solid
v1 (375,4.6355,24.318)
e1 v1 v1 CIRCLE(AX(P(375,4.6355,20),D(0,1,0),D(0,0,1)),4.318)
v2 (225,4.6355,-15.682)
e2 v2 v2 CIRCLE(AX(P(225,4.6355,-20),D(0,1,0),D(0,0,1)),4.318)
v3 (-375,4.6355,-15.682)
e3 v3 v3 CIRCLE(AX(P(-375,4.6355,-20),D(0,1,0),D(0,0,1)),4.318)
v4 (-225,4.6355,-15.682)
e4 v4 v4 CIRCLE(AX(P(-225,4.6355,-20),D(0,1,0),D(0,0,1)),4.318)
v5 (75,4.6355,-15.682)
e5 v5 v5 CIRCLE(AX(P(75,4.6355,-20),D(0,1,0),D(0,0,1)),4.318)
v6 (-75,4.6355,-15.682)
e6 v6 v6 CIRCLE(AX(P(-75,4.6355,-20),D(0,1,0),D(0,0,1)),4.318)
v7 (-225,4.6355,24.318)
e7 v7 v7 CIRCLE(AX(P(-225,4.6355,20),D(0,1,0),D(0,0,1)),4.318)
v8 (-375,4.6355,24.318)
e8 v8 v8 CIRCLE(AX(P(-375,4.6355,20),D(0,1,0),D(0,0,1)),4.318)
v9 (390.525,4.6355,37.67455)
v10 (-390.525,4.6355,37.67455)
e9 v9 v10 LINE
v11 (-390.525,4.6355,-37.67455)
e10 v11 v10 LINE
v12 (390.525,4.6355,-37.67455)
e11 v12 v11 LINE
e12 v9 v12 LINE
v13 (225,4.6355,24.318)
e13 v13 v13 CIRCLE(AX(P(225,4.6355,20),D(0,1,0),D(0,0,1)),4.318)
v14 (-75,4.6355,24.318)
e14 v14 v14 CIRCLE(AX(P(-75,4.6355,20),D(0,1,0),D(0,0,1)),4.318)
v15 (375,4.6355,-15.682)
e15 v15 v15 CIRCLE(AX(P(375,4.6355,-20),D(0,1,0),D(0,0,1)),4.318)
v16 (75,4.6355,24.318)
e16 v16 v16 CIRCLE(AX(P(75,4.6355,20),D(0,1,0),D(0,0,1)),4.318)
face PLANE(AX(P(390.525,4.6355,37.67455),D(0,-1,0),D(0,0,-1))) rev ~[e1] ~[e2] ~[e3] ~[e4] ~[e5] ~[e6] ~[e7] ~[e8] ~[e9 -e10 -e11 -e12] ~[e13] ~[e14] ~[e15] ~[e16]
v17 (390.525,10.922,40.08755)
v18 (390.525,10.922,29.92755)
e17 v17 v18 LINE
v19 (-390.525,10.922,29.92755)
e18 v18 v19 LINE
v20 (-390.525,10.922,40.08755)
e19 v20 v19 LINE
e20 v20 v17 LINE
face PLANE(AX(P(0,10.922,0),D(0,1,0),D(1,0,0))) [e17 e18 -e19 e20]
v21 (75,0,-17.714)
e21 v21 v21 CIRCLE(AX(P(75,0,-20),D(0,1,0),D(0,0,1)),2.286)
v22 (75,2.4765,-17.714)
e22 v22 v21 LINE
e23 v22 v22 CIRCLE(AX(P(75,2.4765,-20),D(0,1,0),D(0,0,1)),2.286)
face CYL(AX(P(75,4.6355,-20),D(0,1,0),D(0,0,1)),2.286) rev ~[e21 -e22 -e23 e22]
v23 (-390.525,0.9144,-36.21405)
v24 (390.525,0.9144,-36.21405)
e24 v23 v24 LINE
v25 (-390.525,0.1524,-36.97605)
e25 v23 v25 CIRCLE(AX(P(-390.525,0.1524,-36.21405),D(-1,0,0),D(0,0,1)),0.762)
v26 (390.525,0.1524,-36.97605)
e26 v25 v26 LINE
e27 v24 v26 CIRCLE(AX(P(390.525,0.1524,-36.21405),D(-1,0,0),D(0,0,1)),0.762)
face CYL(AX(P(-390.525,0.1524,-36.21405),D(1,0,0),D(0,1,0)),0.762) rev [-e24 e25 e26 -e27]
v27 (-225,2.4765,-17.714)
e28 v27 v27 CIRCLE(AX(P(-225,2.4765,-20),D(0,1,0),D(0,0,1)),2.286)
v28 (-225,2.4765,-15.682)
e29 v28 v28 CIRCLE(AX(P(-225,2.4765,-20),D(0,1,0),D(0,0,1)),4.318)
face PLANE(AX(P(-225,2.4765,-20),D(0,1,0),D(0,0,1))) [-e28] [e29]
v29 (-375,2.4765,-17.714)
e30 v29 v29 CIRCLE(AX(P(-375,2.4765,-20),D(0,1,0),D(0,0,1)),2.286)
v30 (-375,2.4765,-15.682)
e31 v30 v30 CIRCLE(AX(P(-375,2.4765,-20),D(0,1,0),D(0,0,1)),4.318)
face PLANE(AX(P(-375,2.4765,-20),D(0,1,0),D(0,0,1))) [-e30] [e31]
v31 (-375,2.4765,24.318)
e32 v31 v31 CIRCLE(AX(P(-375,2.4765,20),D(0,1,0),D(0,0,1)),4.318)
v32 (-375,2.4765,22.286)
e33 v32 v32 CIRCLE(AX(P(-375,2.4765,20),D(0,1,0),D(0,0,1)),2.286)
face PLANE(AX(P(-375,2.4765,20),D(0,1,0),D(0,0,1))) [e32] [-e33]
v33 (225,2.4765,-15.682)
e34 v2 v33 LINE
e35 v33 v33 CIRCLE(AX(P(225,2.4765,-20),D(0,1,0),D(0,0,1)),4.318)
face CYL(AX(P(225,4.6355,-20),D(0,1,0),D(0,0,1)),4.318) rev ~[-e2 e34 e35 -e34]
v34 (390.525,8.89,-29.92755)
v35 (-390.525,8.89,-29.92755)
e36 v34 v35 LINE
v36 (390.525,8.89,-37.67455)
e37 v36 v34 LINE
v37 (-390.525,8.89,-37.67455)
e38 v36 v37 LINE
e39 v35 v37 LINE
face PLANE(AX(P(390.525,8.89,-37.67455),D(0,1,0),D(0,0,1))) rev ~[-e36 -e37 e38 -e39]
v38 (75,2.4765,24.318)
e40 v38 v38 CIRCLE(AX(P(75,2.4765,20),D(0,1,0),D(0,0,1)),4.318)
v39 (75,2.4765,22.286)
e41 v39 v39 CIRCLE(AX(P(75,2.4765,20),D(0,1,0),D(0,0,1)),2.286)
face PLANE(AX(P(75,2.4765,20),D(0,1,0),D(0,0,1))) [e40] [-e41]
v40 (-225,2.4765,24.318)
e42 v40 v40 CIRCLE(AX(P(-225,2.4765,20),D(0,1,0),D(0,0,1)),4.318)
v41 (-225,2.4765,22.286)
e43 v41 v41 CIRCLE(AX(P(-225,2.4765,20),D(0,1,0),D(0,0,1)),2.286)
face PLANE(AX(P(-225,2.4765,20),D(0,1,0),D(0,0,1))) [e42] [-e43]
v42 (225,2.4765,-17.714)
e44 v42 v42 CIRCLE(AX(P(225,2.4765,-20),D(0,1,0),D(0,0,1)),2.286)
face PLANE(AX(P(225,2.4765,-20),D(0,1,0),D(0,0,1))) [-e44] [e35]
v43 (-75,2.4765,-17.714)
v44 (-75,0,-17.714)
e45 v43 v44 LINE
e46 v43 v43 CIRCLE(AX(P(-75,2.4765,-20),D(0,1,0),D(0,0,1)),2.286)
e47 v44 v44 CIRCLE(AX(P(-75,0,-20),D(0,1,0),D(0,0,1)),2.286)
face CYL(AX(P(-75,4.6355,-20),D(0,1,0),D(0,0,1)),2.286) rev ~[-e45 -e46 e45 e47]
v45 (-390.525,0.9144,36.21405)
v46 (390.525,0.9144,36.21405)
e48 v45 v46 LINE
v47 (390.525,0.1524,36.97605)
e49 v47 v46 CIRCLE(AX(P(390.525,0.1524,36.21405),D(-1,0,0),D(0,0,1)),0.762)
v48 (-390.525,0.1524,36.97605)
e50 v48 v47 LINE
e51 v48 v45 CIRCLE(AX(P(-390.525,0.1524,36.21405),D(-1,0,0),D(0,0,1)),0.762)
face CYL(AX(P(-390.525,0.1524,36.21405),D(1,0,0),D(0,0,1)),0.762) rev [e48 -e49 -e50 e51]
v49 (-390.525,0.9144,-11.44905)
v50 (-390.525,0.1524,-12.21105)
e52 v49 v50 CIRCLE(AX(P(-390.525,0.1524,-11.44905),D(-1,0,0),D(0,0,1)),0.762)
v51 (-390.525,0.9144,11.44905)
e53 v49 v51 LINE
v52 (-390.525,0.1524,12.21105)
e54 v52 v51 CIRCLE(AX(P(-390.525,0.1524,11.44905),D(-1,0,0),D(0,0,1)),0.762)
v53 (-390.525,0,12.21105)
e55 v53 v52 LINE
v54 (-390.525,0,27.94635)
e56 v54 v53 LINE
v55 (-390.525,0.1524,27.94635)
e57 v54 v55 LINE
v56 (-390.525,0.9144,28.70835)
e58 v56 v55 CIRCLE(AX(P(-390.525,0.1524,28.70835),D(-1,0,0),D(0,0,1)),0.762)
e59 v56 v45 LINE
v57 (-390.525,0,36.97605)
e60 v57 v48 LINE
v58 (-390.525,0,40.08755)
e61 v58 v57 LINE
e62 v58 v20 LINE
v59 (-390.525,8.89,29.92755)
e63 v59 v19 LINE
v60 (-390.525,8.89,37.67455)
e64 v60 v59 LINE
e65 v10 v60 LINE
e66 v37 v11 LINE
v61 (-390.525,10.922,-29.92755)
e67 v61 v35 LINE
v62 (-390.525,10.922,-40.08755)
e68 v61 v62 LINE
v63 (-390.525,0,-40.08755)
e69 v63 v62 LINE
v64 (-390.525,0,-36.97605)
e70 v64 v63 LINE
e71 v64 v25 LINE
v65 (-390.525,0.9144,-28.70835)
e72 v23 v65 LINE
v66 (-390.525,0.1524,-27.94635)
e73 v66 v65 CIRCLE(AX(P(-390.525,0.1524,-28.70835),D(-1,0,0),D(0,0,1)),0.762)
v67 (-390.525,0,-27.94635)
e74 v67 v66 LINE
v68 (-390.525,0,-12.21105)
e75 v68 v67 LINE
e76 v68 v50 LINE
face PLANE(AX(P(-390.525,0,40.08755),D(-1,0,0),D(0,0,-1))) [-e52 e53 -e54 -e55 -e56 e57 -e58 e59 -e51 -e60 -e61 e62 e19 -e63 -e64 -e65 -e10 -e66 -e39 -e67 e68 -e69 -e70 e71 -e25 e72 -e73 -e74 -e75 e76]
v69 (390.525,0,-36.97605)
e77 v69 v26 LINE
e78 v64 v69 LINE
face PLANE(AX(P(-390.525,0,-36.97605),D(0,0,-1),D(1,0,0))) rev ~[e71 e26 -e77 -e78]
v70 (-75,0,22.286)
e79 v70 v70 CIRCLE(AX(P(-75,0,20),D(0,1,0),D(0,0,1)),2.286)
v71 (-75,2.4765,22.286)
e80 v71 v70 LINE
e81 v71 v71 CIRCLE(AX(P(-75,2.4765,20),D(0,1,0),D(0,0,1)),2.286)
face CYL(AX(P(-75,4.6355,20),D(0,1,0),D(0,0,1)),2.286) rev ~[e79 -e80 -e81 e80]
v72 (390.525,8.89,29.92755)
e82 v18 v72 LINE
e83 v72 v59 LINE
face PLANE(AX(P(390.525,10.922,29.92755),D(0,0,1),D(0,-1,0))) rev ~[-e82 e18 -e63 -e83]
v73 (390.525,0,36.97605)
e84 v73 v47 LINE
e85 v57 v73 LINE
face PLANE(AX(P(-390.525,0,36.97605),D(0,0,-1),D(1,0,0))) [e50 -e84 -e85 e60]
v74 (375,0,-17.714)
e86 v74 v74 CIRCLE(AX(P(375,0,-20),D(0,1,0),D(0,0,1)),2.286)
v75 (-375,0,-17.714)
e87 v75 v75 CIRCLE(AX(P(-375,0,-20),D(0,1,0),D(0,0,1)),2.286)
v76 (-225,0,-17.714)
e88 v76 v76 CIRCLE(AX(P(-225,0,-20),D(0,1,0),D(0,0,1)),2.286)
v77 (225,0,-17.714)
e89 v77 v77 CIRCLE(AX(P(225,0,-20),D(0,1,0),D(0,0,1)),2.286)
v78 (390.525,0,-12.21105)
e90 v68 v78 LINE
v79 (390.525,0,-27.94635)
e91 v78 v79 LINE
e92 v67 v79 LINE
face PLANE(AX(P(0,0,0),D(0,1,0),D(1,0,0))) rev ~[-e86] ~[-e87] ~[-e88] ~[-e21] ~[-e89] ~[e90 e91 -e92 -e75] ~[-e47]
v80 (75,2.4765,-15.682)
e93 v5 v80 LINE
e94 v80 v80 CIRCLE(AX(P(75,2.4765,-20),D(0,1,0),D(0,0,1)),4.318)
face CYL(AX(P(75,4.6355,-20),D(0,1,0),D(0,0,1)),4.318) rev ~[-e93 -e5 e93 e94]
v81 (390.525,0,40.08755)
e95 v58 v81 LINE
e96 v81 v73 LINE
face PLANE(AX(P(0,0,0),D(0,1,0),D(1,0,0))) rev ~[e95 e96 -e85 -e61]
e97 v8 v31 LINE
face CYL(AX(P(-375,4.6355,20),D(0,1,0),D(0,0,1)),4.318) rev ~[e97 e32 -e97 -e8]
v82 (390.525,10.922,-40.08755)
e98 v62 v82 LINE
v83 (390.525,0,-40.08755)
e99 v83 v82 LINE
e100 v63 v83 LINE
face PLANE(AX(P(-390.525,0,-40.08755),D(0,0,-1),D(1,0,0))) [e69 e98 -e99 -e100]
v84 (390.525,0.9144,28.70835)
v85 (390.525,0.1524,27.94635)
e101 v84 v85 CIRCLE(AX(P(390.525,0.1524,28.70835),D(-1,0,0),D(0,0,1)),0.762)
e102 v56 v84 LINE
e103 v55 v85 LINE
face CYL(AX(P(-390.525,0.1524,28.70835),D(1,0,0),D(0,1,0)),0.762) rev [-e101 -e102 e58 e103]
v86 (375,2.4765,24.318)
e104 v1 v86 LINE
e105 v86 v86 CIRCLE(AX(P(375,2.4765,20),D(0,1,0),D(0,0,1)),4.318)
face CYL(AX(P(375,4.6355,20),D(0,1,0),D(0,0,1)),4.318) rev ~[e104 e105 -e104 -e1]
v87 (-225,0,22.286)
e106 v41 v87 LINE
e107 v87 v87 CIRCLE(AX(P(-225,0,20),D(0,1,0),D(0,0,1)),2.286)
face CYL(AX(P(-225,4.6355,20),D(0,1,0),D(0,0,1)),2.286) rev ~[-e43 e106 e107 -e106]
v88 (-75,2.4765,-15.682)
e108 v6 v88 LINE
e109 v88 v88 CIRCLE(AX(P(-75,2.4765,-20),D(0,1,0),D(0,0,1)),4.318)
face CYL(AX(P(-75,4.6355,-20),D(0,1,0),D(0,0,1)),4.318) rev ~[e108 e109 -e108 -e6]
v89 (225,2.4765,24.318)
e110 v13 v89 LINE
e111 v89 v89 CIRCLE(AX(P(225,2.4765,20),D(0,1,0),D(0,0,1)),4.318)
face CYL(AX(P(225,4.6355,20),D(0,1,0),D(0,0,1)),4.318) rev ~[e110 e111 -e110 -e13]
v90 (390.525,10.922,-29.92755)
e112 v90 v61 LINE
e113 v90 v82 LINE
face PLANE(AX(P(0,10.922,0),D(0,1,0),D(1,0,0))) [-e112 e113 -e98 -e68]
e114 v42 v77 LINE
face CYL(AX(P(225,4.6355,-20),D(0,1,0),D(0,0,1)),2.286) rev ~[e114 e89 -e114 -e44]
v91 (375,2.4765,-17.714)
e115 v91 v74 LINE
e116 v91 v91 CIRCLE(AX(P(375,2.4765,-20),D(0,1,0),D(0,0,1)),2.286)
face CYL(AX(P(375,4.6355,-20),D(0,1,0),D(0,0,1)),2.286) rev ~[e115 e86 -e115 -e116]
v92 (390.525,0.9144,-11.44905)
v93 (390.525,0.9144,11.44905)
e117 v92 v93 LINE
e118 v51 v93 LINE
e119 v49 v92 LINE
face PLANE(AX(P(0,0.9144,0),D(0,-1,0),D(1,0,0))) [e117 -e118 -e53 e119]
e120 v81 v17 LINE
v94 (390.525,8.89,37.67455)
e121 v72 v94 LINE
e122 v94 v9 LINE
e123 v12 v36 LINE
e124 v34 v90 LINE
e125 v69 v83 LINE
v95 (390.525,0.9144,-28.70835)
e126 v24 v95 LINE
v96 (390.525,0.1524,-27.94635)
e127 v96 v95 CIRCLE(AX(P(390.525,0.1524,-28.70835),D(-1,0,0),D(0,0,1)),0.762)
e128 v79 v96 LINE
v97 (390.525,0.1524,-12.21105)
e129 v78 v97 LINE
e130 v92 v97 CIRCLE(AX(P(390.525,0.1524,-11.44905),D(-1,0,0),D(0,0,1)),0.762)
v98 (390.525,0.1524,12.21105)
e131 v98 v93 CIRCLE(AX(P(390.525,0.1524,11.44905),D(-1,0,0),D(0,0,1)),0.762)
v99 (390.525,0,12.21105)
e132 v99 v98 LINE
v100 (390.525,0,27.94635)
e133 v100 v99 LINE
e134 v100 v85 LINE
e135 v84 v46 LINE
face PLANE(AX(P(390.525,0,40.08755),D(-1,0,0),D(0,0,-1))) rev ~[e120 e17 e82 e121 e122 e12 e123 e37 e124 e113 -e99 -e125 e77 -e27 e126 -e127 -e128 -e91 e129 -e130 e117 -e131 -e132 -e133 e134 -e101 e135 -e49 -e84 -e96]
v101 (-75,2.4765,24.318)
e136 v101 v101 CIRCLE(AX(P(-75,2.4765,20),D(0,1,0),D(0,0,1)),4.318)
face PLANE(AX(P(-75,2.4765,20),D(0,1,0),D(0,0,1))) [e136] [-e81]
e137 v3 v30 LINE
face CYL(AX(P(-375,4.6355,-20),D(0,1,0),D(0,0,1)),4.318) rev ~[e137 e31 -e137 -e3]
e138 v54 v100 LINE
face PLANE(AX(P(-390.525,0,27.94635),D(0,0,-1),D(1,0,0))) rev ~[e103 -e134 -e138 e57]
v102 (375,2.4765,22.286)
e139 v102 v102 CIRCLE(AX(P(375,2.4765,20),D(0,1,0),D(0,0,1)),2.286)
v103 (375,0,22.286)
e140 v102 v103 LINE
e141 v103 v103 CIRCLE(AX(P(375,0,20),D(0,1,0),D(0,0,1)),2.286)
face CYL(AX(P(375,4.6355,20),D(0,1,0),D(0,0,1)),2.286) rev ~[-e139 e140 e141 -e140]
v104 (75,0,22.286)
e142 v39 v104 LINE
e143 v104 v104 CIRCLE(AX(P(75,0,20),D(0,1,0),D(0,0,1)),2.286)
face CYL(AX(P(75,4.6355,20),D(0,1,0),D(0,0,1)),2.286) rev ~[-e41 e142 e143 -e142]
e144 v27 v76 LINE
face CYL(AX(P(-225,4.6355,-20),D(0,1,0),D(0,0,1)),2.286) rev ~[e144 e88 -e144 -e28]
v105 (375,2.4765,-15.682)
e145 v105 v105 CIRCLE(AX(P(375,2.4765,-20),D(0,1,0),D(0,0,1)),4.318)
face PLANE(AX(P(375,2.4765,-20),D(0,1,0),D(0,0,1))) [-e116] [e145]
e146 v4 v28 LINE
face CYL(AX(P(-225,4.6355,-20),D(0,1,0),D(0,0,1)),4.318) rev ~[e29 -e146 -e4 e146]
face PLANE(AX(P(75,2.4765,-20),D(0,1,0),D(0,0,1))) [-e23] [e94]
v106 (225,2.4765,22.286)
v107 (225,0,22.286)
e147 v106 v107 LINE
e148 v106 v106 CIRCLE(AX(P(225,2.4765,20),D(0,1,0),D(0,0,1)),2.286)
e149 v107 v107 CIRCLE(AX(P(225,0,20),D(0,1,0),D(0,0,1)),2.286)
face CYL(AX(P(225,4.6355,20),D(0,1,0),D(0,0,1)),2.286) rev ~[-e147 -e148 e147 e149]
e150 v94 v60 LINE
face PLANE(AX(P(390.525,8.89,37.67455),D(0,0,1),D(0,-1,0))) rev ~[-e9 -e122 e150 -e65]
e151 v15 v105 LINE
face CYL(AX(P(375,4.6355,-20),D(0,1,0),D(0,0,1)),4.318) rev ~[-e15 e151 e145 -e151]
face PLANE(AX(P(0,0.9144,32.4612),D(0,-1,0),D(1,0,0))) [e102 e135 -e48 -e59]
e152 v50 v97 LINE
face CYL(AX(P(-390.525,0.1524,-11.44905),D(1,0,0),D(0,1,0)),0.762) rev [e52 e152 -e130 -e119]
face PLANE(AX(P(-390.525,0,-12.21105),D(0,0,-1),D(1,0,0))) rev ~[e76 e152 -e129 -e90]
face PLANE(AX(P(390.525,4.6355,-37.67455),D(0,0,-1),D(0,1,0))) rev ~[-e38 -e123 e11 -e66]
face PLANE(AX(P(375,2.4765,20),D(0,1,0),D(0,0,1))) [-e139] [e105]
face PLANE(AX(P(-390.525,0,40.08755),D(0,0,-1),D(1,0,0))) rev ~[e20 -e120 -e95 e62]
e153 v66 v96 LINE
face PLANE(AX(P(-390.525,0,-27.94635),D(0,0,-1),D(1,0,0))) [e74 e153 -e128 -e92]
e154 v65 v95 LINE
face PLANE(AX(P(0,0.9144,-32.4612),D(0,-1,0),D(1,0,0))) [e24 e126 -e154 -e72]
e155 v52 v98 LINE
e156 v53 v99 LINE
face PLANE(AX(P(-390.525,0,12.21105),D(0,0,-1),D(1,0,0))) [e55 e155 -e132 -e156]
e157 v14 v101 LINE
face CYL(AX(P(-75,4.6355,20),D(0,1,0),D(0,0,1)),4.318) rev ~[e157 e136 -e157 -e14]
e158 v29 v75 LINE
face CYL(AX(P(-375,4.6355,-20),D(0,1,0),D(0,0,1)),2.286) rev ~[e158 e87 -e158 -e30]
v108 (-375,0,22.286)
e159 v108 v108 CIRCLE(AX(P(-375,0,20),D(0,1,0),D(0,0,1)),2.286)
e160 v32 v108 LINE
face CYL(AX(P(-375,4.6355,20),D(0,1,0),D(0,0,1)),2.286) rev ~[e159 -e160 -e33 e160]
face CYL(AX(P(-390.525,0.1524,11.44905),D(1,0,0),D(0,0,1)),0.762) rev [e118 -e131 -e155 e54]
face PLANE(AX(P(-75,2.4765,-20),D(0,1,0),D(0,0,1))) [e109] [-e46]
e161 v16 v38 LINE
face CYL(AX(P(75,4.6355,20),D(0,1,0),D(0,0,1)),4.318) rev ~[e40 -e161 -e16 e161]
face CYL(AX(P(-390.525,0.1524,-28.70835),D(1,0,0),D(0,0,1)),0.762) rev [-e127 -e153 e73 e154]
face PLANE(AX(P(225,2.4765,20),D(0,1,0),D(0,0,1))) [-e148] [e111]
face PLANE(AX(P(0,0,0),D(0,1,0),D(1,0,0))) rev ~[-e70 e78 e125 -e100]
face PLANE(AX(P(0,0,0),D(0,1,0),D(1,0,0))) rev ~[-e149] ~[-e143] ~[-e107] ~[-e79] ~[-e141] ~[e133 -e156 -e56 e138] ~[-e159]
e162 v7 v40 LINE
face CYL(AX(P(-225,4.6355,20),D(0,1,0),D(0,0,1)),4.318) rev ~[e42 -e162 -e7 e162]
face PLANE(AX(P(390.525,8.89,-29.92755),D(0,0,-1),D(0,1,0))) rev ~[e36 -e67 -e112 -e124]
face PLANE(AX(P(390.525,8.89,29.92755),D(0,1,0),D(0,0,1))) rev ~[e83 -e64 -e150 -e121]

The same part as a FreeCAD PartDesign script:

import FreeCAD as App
import Part
import Sketcher
from FreeCAD import Vector
Q = App.Units.Quantity


def edges_at(feature, points):
    """Names of the edges that pass closest to the given points."""
    edges = feature.Shape.Edges
    near = lambda p: min(range(len(edges)), key=lambda i: edges[i].distToShape(Part.Vertex(*p))[0])
    return sorted({f"Edge{near(p) + 1}" for p in points})


def add_polygon(sketch, points):
    """Adds a closed chain of lines whose ends are joined by coincident constraints."""
    first, n = sketch.GeometryCount, len(points)
    for a, b in zip(points, points[1:] + points[:1]):
        sketch.addGeometry(Part.LineSegment(App.Vector(*a, 0), App.Vector(*b, 0)), False)
    for i in range(n):
        sketch.addConstraint(Sketcher.Constraint("Coincident", first + i, 2, first + (i + 1) % n, 1))

doc = App.newDocument("Part")
body = doc.addObject("PartDesign::Body", "Body")

# Sketch on XZ plane
sketch1 = doc.addObject("Sketcher::SketchObject", "Sketch")
body.addObject(sketch1)
sketch1.AttachmentSupport = (doc.XZ_Plane, [""])
sketch1.MapMode = "FlatFace"
add_polygon(sketch1, [(-390.525, -40.08755), (-390.525, 40.08755), (390.525, 40.08755), (390.525, -40.08755)])  # lines 0-3
sketch1.addConstraint([
    Sketcher.Constraint("Vertical", 0),
    Sketcher.Constraint("Horizontal", 1),
    Sketcher.Constraint("Vertical", 2),
    Sketcher.Constraint("Horizontal", 3),
    Sketcher.Constraint("Symmetric", 0, 2, 2, 2, -1, 1),
    Sketcher.Constraint("DistanceX", 1, 1, 1, 2, Q("30.75 in")),
    Sketcher.Constraint("DistanceY", 0, 1, 0, 2, Q("3.1565 in")),
])
pad1 = doc.addObject("PartDesign::Pad", "Pad")
body.addObject(pad1)
pad1.Profile = sketch1
pad1.Length = Q("0.43 in")
pad1.Reversed = True

# Sketch on XZ plane
sketch2 = doc.addObject("Sketcher::SketchObject", "Sketch001")
body.addObject(sketch2)
sketch2.AttachmentSupport = (doc.XZ_Plane, [""])
sketch2.MapMode = "FlatFace"
add_polygon(sketch2, [(-390.525, 36.97605), (-390.525, 27.94635), (390.525, 27.94635), (390.525, 36.97605)])  # lines 0-3
add_polygon(sketch2, [(-390.525, 12.21105), (-390.525, -12.21105), (390.525, -12.21105), (390.525, 12.21105)])  # lines 4-7
add_polygon(sketch2, [(-390.525, -27.94635), (-390.525, -36.97605), (390.525, -36.97605), (390.525, -27.94635)])  # lines 8-11
sketch2.addConstraint([
    Sketcher.Constraint("Vertical", 0),
    Sketcher.Constraint("Horizontal", 1),
    Sketcher.Constraint("Vertical", 2),
    Sketcher.Constraint("Horizontal", 3),
    Sketcher.Constraint("Vertical", 4),
    Sketcher.Constraint("Horizontal", 5),
    Sketcher.Constraint("Vertical", 6),
    Sketcher.Constraint("Horizontal", 7),
    Sketcher.Constraint("Vertical", 8),
    Sketcher.Constraint("Horizontal", 9),
    Sketcher.Constraint("Vertical", 10),
    Sketcher.Constraint("Horizontal", 11),
    Sketcher.Constraint("Symmetric", 4, 2, 6, 2, -1, 1),
    Sketcher.Constraint("Symmetric", 2, 2, 8, 2, -1, 1),
    Sketcher.Constraint("Symmetric", 0, 2, 10, 2, -1, 1),
    Sketcher.Constraint("Vertical", 3, 2, 4, 2),
    Sketcher.Constraint("Vertical", 2, 2, 5, 2),
    Sketcher.Constraint("DistanceX", 1, 1, 1, 2, Q("30.75 in")),
    Sketcher.Constraint("DistanceY", 0, 2, 0, 1, Q("0.3555 in")),
    Sketcher.Constraint("DistanceY", 4, 2, 4, 1, Q("0.9615 in")),
    Sketcher.Constraint("DistanceY", 4, 2, 0, 2, Q("1.581 in")),
])
pocket1 = doc.addObject("PartDesign::Pocket", "Pocket")
body.addObject(pocket1)
pocket1.Profile = sketch2
pocket1.Length = Q("0.036 in")
doc.recompute()

fillet = doc.addObject("PartDesign::Fillet", "Fillet")
body.addObject(fillet)
fillet.Base = (pocket1, edges_at(pocket1, [
    (0, 0.914, 27.946),
    (0, 0.914, 36.976),
    (0, 0.914, -12.211),
    (0, 0.914, 12.211),
    (0, 0.914, -36.976),
    (0, 0.914, -27.946),
]))
fillet.Radius = Q("0.03 in")

# Sketch on YZ plane
sketch3 = doc.addObject("Sketcher::SketchObject", "Sketch002")
body.addObject(sketch3)
sketch3.AttachmentSupport = (doc.YZ_Plane, [""])
sketch3.MapMode = "FlatFace"
sketch3.AttachmentOffset = App.Placement(Vector(0, 0, 15.375 * 25.4), App.Rotation())
add_polygon(sketch3, [(10.922, 29.92755), (8.89, 29.92755), (8.89, 37.67455), (4.6355, 37.67455), (4.6355, -37.67455), (8.89, -37.67455), (8.89, -29.92755), (10.922, -29.92755)])  # lines 0-7
sketch3.addConstraint([
    Sketcher.Constraint("Horizontal", 0),
    Sketcher.Constraint("Vertical", 1),
    Sketcher.Constraint("Horizontal", 2),
    Sketcher.Constraint("Vertical", 3),
    Sketcher.Constraint("Horizontal", 4),
    Sketcher.Constraint("Vertical", 5),
    Sketcher.Constraint("Horizontal", 6),
    Sketcher.Constraint("Vertical", 7),
    Sketcher.Constraint("Symmetric", 1, 2, 4, 2, -1),
    Sketcher.Constraint("Equal", 1, 5),
    Sketcher.Constraint("DistanceX", 0, 2, 0, 1, Q("0.08 in")),
    Sketcher.Constraint("DistanceY", 1, 1, 1, 2, Q("0.305 in")),
    Sketcher.Constraint("DistanceX", -1, 1, 0, 2, Q("0.35 in")),
    Sketcher.Constraint("DistanceX", 2, 2, 2, 1, Q("0.1675 in")),
    Sketcher.Constraint("DistanceY", 3, 2, 3, 1, Q("2.9665 in")),
])
pocket2 = doc.addObject("PartDesign::Pocket", "Pocket001")
body.addObject(pocket2)
pocket2.Profile = sketch3
pocket2.Type = "ThroughAll"

# Sketch on XZ plane
sketch4 = doc.addObject("Sketcher::SketchObject", "Sketch003")
body.addObject(sketch4)
sketch4.AttachmentSupport = (doc.XZ_Plane, [""])
sketch4.MapMode = "FlatFace"
sketch4.AttachmentOffset = App.Placement(Vector(0, 0, -0.1825 * 25.4), App.Rotation())
sketch4.addGeometry([
    Part.Circle(Vector(75, 20, 0), Vector(0, 0, 1), 2.286),
    Part.Circle(Vector(75, -20, 0), Vector(0, 0, 1), 2.286),
], False)
sketch4.addConstraint([
    Sketcher.Constraint("Equal", 0, 1),
    Sketcher.Constraint("Symmetric", 0, 3, 1, 3, -1),
    Sketcher.Constraint("Diameter", 0, Q("0.18 in")),
    Sketcher.Constraint("DistanceX", -1, 1, 0, 3, Q("75 mm")),
    Sketcher.Constraint("DistanceY", -1, 1, 0, 3, Q("20 mm")),
])
pocket3 = doc.addObject("PartDesign::Pocket", "Pocket002")
body.addObject(pocket3)
pocket3.Profile = sketch4
pocket3.Type = "ThroughAll"
pocket3.Reversed = True
doc.recompute()

linearpattern = doc.addObject("PartDesign::LinearPattern", "LinearPattern")
body.addObject(linearpattern)
linearpattern.Originals = [pocket3]
linearpattern.Direction = (doc.X_Axis, [""])
linearpattern.Mode = "offset"
linearpattern.Offset = 150
linearpattern.Occurrences = 5
body.Tip = linearpattern
doc.recompute()

linearpattern2 = doc.addObject("PartDesign::LinearPattern", "LinearPattern001")
body.addObject(linearpattern2)
linearpattern2.Originals = [pocket3]
linearpattern2.Direction = (doc.X_Axis, [""])
linearpattern2.Mode = "offset"
linearpattern2.Offset = 150
linearpattern2.Occurrences = 4
linearpattern2.Reversed = True
body.Tip = linearpattern2

# Sketch on XZ plane
sketch5 = doc.addObject("Sketcher::SketchObject", "Sketch004")
body.addObject(sketch5)
sketch5.AttachmentSupport = (doc.XZ_Plane, [""])
sketch5.MapMode = "FlatFace"
sketch5.AttachmentOffset = App.Placement(Vector(0, 0, -0.1825 * 25.4), App.Rotation())
sketch5.addGeometry([
    Part.Circle(Vector(375, 20, 0), Vector(0, 0, 1), 4.318),
    Part.Circle(Vector(375, -20, 0), Vector(0, 0, 1), 4.318),
], False)
sketch5.addConstraint([
    Sketcher.Constraint("Equal", 0, 1),
    Sketcher.Constraint("Symmetric", 0, 3, 1, 3, -1),
    Sketcher.Constraint("Diameter", 0, Q("0.34 in")),
    Sketcher.Constraint("DistanceX", -1, 1, 0, 3, Q("375 mm")),
    Sketcher.Constraint("DistanceY", -1, 1, 0, 3, Q("20 mm")),
])
pocket4 = doc.addObject("PartDesign::Pocket", "Pocket003")
body.addObject(pocket4)
pocket4.Profile = sketch5
pocket4.Length = Q("0.085 in")
pocket4.Reversed = True
doc.recompute()

linearpattern3 = doc.addObject("PartDesign::LinearPattern", "LinearPattern002")
body.addObject(linearpattern3)
linearpattern3.Originals = [pocket4]
linearpattern3.Direction = (doc.X_Axis, [""])
linearpattern3.Mode = "offset"
linearpattern3.Offset = 150
linearpattern3.Occurrences = 6
linearpattern3.Reversed = True
body.Tip = linearpattern3

doc.recompute()
